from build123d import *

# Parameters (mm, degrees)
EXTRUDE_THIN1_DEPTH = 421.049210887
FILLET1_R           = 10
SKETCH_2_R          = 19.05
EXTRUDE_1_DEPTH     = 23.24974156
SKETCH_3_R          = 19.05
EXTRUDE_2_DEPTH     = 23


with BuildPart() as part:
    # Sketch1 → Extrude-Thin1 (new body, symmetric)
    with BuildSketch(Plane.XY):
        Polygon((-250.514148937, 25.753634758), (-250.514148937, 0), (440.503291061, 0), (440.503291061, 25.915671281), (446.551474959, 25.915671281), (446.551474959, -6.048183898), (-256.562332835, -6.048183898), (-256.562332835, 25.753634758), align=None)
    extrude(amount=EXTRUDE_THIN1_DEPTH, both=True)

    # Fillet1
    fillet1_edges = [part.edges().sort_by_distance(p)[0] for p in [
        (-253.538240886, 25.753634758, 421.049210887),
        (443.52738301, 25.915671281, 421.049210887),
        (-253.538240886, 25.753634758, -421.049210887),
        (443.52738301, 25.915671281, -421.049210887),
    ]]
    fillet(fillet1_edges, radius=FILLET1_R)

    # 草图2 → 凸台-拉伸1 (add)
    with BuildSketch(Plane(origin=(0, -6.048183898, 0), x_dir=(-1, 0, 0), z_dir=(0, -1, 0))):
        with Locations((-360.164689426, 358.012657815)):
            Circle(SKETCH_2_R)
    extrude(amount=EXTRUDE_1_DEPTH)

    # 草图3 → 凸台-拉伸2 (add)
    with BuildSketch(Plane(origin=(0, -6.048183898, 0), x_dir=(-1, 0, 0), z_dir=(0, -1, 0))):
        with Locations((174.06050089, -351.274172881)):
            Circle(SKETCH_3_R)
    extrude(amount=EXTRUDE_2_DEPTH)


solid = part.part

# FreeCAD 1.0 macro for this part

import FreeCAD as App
import Part
import Sketcher

V = App.Vector
Q = App.Units.Quantity


def edges_at(feature, points):
    """Names of the edges that pass closest to the given points."""
    edges = feature.Shape.Edges
    near = lambda p: min(range(len(edges)), key=lambda i: edges[i].distToShape(Part.Vertex(*p))[0])
    return sorted({f"Edge{near(p) + 1}" for p in points})


def add_polygon(sketch, points):
    """Adds a closed chain of lines whose ends are joined by coincident constraints."""
    first, n = sketch.GeometryCount, len(points)
    for a, b in zip(points, points[1:] + points[:1]):
        sketch.addGeometry(Part.LineSegment(App.Vector(*a, 0), App.Vector(*b, 0)), False)
    for i in range(n):
        sketch.addConstraint(Sketcher.Constraint("Coincident", first + i, 2, first + (i + 1) % n, 1))

doc = App.newDocument("Part")
body = doc.addObject("PartDesign::Body", "Body")

# Sketch on XY plane
sketch1 = body.newObject("Sketcher::SketchObject", "Sketch")
sketch1.AttachmentSupport = (doc.getObject("XY_Plane"), [""])
sketch1.MapMode = "FlatFace"
add_polygon(sketch1, [(-250.514149, 0), (-250.514149, 25.753635), (-256.562333, 25.753635), (-256.562333, -6.048184), (446.551475, -6.048184), (446.551475, 25.915671), (440.503291, 25.915671), (440.503291, 0)])  # lines 0-7
sketch1.addConstraint([
    Sketcher.Constraint("Vertical", 0),
    Sketcher.Constraint("Horizontal", 1),
    Sketcher.Constraint("Vertical", 2),
    Sketcher.Constraint("Horizontal", 3),
    Sketcher.Constraint("Vertical", 4),
    Sketcher.Constraint("Horizontal", 5),
    Sketcher.Constraint("Vertical", 6),
    Sketcher.Constraint("Horizontal", 7),
    Sketcher.Constraint("PointOnObject", 6, 2, -1),
    Sketcher.Constraint("Equal", 1, 5),
    Sketcher.Constraint("DistanceX", 7, 2, 7, 1, Q("691.01744 mm")),
    Sketcher.Constraint("DistanceY", 2, 2, 2, 1, Q("31.801819 mm")),
    Sketcher.Constraint("DistanceY", 6, 2, 6, 1, Q("25.915671 mm")),
    Sketcher.Constraint("DistanceX", 1, 2, 1, 1, Q("6.048184 mm")),
    Sketcher.Constraint("DistanceY", 0, 1, 0, 2, Q("25.753635 mm")),
    Sketcher.Constraint("DistanceX", 0, 2, -1, 1, Q("250.514149 mm")),
])
pad1 = body.newObject("PartDesign::Pad", "Pad")
pad1.Profile = sketch1
pad1.Length = 842.098422
pad1.Midplane = True
doc.recompute()

fillet = body.newObject("PartDesign::Fillet", "Fillet")
fillet.Base = (pad1, edges_at(pad1, [
    (-253.538, 25.754, 421.049),
    (443.527, 25.916, 421.049),
    (-253.538, 25.754, -421.049),
    (443.527, 25.916, -421.049),
]))
fillet.Radius = 10

# Sketch on XZ plane
sketch2 = body.newObject("Sketcher::SketchObject", "Sketch001")
sketch2.AttachmentSupport = (doc.getObject("XZ_Plane"), [""])
sketch2.MapMode = "FlatFace"
sketch2.AttachmentOffset = App.Placement(V(0, 0, 6.048184), App.Rotation())
sketch2.addGeometry(Part.Circle(V(360.164689, -358.012658, 0), V(0, 0, 1), 19.05), False)
sketch2.addConstraint([
    Sketcher.Constraint("Diameter", 0, Q("38.1 mm")),
    Sketcher.Constraint("DistanceX", -1, 1, 0, 3, Q("360.164689 mm")),
    Sketcher.Constraint("DistanceY", 0, 3, -1, 1, Q("358.012658 mm")),
])
pad2 = body.newObject("PartDesign::Pad", "Pad001")
pad2.Profile = sketch2
pad2.Length = 23.249742

# Sketch on XZ plane
sketch3 = body.newObject("Sketcher::SketchObject", "Sketch002")
sketch3.AttachmentSupport = (doc.getObject("XZ_Plane"), [""])
sketch3.MapMode = "FlatFace"
sketch3.AttachmentOffset = App.Placement(V(0, 0, 6.048184), App.Rotation())
sketch3.addGeometry(Part.Circle(V(-174.060501, 351.274173, 0), V(0, 0, 1), 19.05), False)
sketch3.addConstraint([
    Sketcher.Constraint("Diameter", 0, Q("38.1 mm")),
    Sketcher.Constraint("DistanceX", 0, 3, -1, 1, Q("174.060501 mm")),
    Sketcher.Constraint("DistanceY", -1, 1, 0, 3, Q("351.274173 mm")),
])
pad3 = body.newObject("PartDesign::Pad", "Pad002")
pad3.Profile = sketch3
pad3.Length = 23

doc.recompute()
